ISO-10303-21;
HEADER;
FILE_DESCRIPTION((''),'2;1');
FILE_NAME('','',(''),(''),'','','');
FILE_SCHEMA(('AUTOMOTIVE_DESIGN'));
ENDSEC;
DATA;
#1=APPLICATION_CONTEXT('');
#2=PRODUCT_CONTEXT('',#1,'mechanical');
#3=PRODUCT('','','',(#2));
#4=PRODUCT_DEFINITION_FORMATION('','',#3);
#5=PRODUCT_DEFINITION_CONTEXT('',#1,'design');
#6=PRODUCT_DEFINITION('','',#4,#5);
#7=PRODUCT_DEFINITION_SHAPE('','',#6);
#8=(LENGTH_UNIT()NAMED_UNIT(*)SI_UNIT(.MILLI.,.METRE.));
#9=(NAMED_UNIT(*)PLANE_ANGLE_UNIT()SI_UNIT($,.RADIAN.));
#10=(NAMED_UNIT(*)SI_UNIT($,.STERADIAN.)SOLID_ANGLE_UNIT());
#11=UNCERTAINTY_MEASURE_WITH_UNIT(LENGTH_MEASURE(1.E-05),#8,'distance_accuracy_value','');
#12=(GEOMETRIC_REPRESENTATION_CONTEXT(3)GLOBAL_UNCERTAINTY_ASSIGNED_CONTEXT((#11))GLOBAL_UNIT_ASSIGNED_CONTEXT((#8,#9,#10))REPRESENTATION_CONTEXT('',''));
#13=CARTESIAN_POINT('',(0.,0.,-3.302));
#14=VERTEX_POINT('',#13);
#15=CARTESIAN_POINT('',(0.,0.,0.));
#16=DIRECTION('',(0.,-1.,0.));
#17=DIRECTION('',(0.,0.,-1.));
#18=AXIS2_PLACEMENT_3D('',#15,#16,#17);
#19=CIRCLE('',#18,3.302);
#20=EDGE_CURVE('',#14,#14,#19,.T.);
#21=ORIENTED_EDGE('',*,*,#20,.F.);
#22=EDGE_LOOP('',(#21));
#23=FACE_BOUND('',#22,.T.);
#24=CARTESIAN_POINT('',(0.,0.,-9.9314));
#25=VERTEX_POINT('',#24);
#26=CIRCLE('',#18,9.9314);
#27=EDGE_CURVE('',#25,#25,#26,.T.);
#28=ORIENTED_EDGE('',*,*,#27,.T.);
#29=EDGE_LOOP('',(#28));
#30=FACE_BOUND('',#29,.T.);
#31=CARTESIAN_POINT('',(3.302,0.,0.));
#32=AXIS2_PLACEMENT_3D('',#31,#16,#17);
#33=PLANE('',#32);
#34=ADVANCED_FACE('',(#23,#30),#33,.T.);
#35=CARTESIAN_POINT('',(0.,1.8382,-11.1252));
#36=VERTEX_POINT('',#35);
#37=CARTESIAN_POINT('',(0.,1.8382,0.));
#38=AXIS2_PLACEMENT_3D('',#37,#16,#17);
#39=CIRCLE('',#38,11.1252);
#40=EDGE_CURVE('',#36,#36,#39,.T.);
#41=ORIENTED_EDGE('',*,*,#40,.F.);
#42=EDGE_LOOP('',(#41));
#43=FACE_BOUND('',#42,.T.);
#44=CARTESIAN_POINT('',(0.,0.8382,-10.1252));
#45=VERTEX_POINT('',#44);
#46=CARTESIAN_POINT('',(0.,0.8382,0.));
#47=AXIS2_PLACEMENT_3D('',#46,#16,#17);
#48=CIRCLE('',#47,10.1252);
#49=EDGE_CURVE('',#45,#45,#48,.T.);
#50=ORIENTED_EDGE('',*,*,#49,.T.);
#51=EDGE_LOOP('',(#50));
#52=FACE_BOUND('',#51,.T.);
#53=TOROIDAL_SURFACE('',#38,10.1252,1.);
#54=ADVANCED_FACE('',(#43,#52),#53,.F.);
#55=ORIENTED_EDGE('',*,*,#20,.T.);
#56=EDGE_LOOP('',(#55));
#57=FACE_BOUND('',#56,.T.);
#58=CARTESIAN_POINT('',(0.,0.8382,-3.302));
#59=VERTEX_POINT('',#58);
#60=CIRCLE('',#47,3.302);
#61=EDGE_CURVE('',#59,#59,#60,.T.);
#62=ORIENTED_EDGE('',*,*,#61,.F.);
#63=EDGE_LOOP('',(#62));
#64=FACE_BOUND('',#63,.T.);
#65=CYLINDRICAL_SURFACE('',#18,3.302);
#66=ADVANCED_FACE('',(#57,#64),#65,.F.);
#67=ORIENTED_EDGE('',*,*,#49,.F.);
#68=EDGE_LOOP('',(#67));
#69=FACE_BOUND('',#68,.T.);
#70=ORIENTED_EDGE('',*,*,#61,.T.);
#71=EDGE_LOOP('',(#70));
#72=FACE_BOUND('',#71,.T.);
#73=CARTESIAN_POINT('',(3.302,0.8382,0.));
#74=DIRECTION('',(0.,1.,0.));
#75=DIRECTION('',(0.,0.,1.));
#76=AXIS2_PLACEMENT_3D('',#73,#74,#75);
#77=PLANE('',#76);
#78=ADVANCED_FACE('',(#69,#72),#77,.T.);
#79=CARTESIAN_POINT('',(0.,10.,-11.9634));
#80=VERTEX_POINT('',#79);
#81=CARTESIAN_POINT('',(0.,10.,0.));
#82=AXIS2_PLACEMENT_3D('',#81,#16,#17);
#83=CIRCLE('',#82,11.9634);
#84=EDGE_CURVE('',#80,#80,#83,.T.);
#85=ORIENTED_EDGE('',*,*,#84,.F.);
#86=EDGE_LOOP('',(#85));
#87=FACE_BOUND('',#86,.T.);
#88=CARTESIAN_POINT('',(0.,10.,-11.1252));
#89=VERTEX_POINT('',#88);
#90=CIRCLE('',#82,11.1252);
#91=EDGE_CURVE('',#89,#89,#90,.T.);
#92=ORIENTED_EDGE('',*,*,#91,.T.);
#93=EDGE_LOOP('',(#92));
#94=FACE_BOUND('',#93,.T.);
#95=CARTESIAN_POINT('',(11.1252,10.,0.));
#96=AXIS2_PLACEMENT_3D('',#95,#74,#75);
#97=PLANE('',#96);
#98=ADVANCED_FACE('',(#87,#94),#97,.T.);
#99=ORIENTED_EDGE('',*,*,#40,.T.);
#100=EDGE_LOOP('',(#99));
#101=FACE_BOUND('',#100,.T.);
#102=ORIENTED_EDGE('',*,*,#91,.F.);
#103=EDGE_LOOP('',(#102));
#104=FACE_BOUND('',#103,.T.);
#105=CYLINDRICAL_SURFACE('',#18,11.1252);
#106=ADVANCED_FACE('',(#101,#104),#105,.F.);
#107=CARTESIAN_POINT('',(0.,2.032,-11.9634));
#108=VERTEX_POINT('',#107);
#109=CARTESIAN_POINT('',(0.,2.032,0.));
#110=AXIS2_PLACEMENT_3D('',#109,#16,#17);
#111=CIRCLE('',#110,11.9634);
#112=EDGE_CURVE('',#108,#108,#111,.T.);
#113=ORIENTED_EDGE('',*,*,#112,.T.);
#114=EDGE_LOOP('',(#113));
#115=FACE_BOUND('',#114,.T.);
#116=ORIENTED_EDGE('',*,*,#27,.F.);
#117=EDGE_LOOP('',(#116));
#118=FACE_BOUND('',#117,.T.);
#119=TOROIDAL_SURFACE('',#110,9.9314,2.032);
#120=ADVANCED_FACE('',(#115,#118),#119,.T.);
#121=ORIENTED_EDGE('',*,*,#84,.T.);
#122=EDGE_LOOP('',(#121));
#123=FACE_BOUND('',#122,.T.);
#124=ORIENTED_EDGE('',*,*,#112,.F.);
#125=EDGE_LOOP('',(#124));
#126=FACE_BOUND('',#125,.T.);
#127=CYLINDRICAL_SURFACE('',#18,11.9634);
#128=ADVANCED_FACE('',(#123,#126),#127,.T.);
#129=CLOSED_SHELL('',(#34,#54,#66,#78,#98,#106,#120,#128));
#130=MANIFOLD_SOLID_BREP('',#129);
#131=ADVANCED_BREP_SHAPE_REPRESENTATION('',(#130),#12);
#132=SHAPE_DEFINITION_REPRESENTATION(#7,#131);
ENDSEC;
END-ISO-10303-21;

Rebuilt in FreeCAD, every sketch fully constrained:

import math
import FreeCAD as App
import Part
import Sketcher
from FreeCAD import Vector
Q = App.Units.Quantity

doc = App.newDocument("Part")
body = doc.addObject("PartDesign::Body", "Body")

# Sketch on XY plane
sketch1 = body.newObject("Sketcher::SketchObject", "Sketch")
sketch1.AttachmentSupport = (doc.getObject("XY_Plane"), [""])
sketch1.MapMode = "FlatFace"
sketch1.addGeometry(Part.LineSegment(Vector(3.3, 0, 0), Vector(9.9, 0, 0)), False)
sketch1.addGeometry(Part.ArcOfCircle(Part.Circle(Vector(9.9, 2, 0), Vector(0, 0, 1), 2), math.radians(-90), math.radians(0)), False)
sketch1.addGeometry(Part.LineSegment(Vector(12, 2, 0), Vector(12, 10, 0)), False)
sketch1.addGeometry(Part.LineSegment(Vector(12, 10, 0), Vector(11.1, 10, 0)), False)
sketch1.addGeometry(Part.LineSegment(Vector(11.1, 10, 0), Vector(11.1, 1.8, 0)), False)
sketch1.addGeometry(Part.ArcOfCircle(Part.Circle(Vector(10.1, 1.8, 0), Vector(0, 0, 1), 1), math.radians(-90), math.radians(0)), False)
sketch1.addGeometry(Part.LineSegment(Vector(10.1, 0.8, 0), Vector(3.3, 0.8, 0)), False)
sketch1.addGeometry(Part.LineSegment(Vector(3.3, 0.8, 0), Vector(3.3, 0, 0)), False)
sketch1.addConstraint(Sketcher.Constraint("Tangent", 0, 2, 1, 1))
sketch1.addConstraint(Sketcher.Constraint("Tangent", 1, 2, 2, 1))
sketch1.addConstraint(Sketcher.Constraint("Coincident", 2, 2, 3, 1))
sketch1.addConstraint(Sketcher.Constraint("Coincident", 3, 2, 4, 1))
sketch1.addConstraint(Sketcher.Constraint("Tangent", 4, 2, 5, 2))
sketch1.addConstraint(Sketcher.Constraint("Tangent", 5, 1, 6, 1))
sketch1.addConstraint(Sketcher.Constraint("Coincident", 6, 2, 7, 1))
sketch1.addConstraint(Sketcher.Constraint("Coincident", 7, 2, 0, 1))
sketch1.addConstraint(Sketcher.Constraint("Horizontal", 0))
sketch1.addConstraint(Sketcher.Constraint("Vertical", 2))
sketch1.addConstraint(Sketcher.Constraint("Horizontal", 3))
sketch1.addConstraint(Sketcher.Constraint("Vertical", 4))
sketch1.addConstraint(Sketcher.Constraint("Horizontal", 6))
sketch1.addConstraint(Sketcher.Constraint("Vertical", 7))
sketch1.addConstraint(Sketcher.Constraint("PointOnObject", 0, 2, -1))
sketch1.addConstraint(Sketcher.Constraint("Equal", 3, 7))
sketch1.addConstraint(Sketcher.Constraint("Radius", 1, Q("0.08 in")))
sketch1.addConstraint(Sketcher.Constraint("DistanceX", 0, 1, 0, 2, Q("0.261 in")))
sketch1.addConstraint(Sketcher.Constraint("DistanceX", 3, 2, 3, 1, Q("0.033 in")))
sketch1.addConstraint(Sketcher.Constraint("DistanceX", -1, 1, 6, 2, Q("0.13 in")))
sketch1.addConstraint(Sketcher.Constraint("Radius", 5, Q("1 mm")))
sketch1.addConstraint(Sketcher.Constraint("DistanceY", 2, 1, 2, 2, Q("7.968 mm")))
revolution = body.newObject("PartDesign::Revolution", "Revolution")
revolution.Profile = sketch1
revolution.ReferenceAxis = (sketch1, ["V_Axis"])
revolution.Angle = 360

doc.recompute()
